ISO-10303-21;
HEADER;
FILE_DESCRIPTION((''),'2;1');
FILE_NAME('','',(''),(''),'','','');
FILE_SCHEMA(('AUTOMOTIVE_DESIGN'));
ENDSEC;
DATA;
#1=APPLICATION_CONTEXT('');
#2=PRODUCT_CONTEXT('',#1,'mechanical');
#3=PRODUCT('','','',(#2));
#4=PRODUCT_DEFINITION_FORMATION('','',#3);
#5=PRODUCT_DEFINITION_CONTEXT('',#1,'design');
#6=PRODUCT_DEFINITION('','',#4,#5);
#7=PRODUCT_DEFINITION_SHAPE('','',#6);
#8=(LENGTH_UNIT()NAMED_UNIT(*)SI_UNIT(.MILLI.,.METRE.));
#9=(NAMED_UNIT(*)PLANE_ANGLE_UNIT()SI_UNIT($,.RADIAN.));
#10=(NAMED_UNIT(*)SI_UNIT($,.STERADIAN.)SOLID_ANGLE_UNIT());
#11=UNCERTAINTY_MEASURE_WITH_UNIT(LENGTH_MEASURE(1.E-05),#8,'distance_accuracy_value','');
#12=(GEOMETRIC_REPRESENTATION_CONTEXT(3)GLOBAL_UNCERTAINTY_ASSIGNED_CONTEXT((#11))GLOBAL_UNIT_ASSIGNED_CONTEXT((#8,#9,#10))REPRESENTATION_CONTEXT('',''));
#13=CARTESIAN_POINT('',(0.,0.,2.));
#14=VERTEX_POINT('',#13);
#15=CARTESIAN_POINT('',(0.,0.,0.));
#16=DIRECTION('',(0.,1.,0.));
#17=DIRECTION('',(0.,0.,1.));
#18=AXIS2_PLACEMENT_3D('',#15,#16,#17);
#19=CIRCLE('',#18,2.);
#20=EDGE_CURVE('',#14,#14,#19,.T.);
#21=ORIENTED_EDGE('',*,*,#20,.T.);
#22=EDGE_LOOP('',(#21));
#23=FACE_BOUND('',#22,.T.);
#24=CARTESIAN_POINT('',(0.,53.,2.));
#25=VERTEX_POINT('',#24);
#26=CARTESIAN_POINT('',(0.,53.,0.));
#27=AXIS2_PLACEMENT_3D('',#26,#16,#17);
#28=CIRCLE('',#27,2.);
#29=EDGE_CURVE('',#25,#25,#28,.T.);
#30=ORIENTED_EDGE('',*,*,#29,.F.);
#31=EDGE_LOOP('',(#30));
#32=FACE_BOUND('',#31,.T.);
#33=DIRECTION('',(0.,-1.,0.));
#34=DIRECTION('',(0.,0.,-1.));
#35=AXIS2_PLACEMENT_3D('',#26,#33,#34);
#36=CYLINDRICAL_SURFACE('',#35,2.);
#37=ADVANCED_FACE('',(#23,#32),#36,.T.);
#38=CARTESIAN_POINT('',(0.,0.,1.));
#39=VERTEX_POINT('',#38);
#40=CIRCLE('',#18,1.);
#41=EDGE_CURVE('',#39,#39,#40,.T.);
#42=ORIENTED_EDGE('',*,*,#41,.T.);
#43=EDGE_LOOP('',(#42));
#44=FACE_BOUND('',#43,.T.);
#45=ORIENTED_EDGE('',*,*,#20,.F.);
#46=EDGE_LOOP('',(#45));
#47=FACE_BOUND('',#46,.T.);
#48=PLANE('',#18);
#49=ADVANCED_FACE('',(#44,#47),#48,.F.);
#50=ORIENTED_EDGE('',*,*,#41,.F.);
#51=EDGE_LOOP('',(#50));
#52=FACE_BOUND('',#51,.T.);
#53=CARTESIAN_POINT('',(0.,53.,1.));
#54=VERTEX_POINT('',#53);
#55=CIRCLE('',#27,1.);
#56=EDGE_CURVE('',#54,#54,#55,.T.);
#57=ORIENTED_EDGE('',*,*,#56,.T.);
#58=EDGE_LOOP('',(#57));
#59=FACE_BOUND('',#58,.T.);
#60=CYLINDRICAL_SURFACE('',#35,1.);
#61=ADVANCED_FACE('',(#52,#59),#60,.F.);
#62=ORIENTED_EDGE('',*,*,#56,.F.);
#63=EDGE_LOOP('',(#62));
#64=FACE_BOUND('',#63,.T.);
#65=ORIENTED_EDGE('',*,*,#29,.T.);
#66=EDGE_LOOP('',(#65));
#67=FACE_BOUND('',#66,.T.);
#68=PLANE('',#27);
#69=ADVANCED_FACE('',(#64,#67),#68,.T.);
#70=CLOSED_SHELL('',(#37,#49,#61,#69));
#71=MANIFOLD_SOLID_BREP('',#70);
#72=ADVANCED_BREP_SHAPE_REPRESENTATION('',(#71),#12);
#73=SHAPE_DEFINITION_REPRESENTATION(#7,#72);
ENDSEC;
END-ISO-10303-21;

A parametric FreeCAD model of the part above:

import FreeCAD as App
import Part
import Sketcher

V = App.Vector

doc = App.newDocument("Part")
body = doc.addObject("PartDesign::Body", "Body")

# Sketch on XZ plane
sketch1 = body.newObject("Sketcher::SketchObject", "Sketch")
sketch1.AttachmentSupport = (doc.getObject("XZ_Plane"), [""])
sketch1.MapMode = "FlatFace"
sketch1.addGeometry(Part.Circle(V(0, 0, 0), V(0, 0, 1), 2), False)
sketch1.addGeometry(Part.Circle(V(0, 0, 0), V(0, 0, 1), 1), False)
sketch1.addConstraint(Sketcher.Constraint("Coincident", 0, 3, -1, 1))
sketch1.addConstraint(Sketcher.Constraint("Coincident", 1, 3, -1, 1))
sketch1.addConstraint(Sketcher.Constraint("Diameter", 0, 4.0))
sketch1.addConstraint(Sketcher.Constraint("Diameter", 1, 2.0))
pad1 = body.newObject("PartDesign::Pad", "Pad")
pad1.Profile = sketch1
pad1.Length = 53
pad1.Reversed = True

doc.recompute()
